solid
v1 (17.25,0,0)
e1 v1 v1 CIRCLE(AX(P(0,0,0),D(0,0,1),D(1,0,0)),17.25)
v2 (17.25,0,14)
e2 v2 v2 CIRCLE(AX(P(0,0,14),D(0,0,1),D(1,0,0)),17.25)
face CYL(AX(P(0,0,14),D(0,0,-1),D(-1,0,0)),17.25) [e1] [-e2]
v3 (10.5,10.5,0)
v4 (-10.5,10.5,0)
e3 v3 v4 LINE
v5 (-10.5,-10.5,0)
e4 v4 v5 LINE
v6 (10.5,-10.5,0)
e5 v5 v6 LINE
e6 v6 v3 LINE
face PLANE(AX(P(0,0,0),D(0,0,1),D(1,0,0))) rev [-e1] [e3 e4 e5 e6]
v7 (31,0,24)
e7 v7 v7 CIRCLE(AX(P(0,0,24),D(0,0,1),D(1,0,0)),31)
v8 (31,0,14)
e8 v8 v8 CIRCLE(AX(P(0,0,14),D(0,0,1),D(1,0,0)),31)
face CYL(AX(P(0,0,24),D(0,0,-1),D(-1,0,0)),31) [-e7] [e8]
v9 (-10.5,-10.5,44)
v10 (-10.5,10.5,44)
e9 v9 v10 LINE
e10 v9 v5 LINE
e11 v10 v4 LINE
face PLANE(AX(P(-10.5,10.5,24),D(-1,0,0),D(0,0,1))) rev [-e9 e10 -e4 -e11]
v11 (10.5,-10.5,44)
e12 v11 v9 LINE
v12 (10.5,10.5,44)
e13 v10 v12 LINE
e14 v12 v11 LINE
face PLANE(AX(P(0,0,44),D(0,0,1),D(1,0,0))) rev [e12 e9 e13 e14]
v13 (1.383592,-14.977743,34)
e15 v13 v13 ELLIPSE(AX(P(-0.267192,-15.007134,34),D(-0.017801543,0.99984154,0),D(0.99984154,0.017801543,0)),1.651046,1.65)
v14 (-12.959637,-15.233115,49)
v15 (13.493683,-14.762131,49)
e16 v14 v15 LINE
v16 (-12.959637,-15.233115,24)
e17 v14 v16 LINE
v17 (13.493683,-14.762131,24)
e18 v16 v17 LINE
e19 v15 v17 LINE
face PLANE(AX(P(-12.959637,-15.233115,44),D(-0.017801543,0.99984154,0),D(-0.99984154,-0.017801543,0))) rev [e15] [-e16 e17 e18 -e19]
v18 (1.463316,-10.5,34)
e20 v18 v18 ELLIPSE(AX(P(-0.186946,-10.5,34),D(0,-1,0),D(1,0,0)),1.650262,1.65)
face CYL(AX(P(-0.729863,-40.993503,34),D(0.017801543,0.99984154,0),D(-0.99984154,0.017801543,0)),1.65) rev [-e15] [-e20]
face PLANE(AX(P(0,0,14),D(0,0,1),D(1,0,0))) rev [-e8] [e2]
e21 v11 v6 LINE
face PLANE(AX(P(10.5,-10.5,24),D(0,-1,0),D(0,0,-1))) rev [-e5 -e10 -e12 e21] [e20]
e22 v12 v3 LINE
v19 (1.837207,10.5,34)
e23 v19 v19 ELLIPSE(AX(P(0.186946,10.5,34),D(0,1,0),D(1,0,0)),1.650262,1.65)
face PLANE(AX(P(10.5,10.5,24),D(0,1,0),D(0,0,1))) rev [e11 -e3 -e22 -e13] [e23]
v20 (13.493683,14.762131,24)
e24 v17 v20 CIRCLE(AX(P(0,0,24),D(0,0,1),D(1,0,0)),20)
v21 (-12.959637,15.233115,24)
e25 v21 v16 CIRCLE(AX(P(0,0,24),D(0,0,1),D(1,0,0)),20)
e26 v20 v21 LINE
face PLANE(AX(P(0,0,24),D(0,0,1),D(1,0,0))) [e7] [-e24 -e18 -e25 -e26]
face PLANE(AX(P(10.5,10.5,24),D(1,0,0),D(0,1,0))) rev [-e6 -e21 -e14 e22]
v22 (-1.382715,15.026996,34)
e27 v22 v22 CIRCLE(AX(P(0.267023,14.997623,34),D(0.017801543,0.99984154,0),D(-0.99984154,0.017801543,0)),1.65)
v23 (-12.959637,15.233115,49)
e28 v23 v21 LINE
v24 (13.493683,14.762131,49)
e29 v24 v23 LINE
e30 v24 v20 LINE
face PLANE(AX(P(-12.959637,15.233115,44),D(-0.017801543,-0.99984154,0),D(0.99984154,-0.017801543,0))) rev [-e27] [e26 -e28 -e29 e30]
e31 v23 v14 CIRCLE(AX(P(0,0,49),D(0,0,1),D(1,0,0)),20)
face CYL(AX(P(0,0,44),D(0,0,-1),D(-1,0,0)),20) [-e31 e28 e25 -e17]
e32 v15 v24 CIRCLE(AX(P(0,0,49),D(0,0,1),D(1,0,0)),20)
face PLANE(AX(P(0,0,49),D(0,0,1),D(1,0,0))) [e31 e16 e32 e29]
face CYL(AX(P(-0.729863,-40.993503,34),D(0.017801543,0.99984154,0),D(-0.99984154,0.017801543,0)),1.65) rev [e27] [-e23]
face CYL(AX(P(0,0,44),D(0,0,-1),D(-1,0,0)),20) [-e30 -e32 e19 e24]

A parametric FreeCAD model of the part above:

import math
import FreeCAD as App
import Part
import Sketcher

V = App.Vector
Q = App.Units.Quantity

doc = App.newDocument("Part")
body = doc.addObject("PartDesign::Body", "Body")

# Sketch on XY plane
sketch1 = body.newObject("Sketcher::SketchObject", "Sketch")
sketch1.AttachmentSupport = (doc.getObject("XY_Plane"), [""])
sketch1.MapMode = "FlatFace"
sketch1.addGeometry(Part.Circle(V(0, 0, 0), V(0, 0, 1), 17), False)
sketch1.addConstraint([
    Sketcher.Constraint("Coincident", 0, 3, -1, 1),
    Sketcher.Constraint("Diameter", 0, Q("34.5 mm")),
])
pad1 = body.newObject("PartDesign::Pad", "Pad")
pad1.Profile = sketch1
pad1.Length = 14

# Sketch on XY plane
sketch2 = body.newObject("Sketcher::SketchObject", "Sketch001")
sketch2.AttachmentSupport = (doc.getObject("XY_Plane"), [""])
sketch2.MapMode = "FlatFace"
sketch2.AttachmentOffset = App.Placement(V(0, 0, 14), App.Rotation())
sketch2.addGeometry(Part.Circle(V(0, 0, 0), V(0, 0, 1), 31), False)
sketch2.addConstraint([
    Sketcher.Constraint("Coincident", 0, 3, -1, 1),
    Sketcher.Constraint("Diameter", 0, Q("62 mm")),
])
pad2 = body.newObject("PartDesign::Pad", "Pad001")
pad2.Profile = sketch2
pad2.Length = 10

# Sketch on XY plane
sketch3 = body.newObject("Sketcher::SketchObject", "Sketch002")
sketch3.AttachmentSupport = (doc.getObject("XY_Plane"), [""])
sketch3.MapMode = "FlatFace"
sketch3.addGeometry([
    Part.LineSegment(V(10, 10, 0), V(10, -10, 0)),
    Part.LineSegment(V(10, -10, 0), V(-10, -10, 0)),
    Part.LineSegment(V(-10, -10, 0), V(-10, 10, 0)),
    Part.LineSegment(V(-10, 10, 0), V(10, 10, 0)),
], False)
sketch3.addConstraint([
    Sketcher.Constraint("Coincident", 0, 2, 1, 1),
    Sketcher.Constraint("Coincident", 1, 2, 2, 1),
    Sketcher.Constraint("Coincident", 2, 2, 3, 1),
    Sketcher.Constraint("Coincident", 3, 2, 0, 1),
    Sketcher.Constraint("Vertical", 0),
    Sketcher.Constraint("Horizontal", 1),
    Sketcher.Constraint("Vertical", 2),
    Sketcher.Constraint("Horizontal", 3),
    Sketcher.Constraint("Symmetric", 0, 2, 2, 2, -1, 1),
    Sketcher.Constraint("Equal", 3, 0),
    Sketcher.Constraint("DistanceX", 1, 2, 1, 1, Q("21 mm")),
])
pocket1 = body.newObject("PartDesign::Pocket", "Pocket")
pocket1.Profile = sketch3
pocket1.Type = "ThroughAll"
pocket1.Midplane = True

# Sketch on XY plane
sketch4 = body.newObject("Sketcher::SketchObject", "Sketch003")
sketch4.AttachmentSupport = (doc.getObject("XY_Plane"), [""])
sketch4.MapMode = "FlatFace"
sketch4.AttachmentOffset = App.Placement(V(0, 0, 24), App.Rotation())
sketch4.addGeometry([
    Part.LineSegment(V(13, 15, 0), V(-13, 15, 0)),
    Part.ArcOfCircle(Part.Circle(V(0, 0, 0), V(0, 0, 1), 20), math.radians(130), math.radians(230)),
    Part.LineSegment(V(-13, -15, 0), V(13, -15, 0)),
    Part.ArcOfCircle(Part.Circle(V(0, 0, 0), V(0, 0, 1), 20), math.radians(-48), math.radians(48)),
], False)
sketch4.addConstraint([
    Sketcher.Constraint("Coincident", 0, 2, 1, 1),
    Sketcher.Constraint("Coincident", 1, 2, 2, 1),
    Sketcher.Constraint("Coincident", 2, 2, 3, 1),
    Sketcher.Constraint("Coincident", 3, 2, 0, 1),
    Sketcher.Constraint("Coincident", 1, 3, -1, 1),
    Sketcher.Constraint("Coincident", 3, 3, -1, 1),
    Sketcher.Constraint("Equal", 1, 3),
    Sketcher.Constraint("Vertical", 0, 2, 1, 2),
    Sketcher.Constraint("Vertical", 2, 2, 3, 2),
    Sketcher.Constraint("Radius", 1, Q("20 mm")),
    Sketcher.Constraint("Angle", 0, Q("178.979993 deg")),
    Sketcher.Constraint("DistanceY", 2, 2, -1, 1, Q("14.762131 mm")),
])
pad3 = body.newObject("PartDesign::Pad", "Pad002")
pad3.Profile = sketch4
pad3.Length = 20

# Sketch on XY plane
sketch5 = body.newObject("Sketcher::SketchObject", "Sketch004")
sketch5.AttachmentSupport = (doc.getObject("XY_Plane"), [""])
sketch5.MapMode = "FlatFace"
sketch5.AttachmentOffset = App.Placement(V(0, 0, 24), App.Rotation())
sketch5.addGeometry([
    Part.LineSegment(V(10, 10, 0), V(10, -10, 0)),
    Part.LineSegment(V(10, -10, 0), V(-10, -10, 0)),
    Part.LineSegment(V(-10, -10, 0), V(-10, 10, 0)),
    Part.LineSegment(V(-10, 10, 0), V(10, 10, 0)),
], False)
sketch5.addConstraint([
    Sketcher.Constraint("Coincident", 0, 2, 1, 1),
    Sketcher.Constraint("Coincident", 1, 2, 2, 1),
    Sketcher.Constraint("Coincident", 2, 2, 3, 1),
    Sketcher.Constraint("Coincident", 3, 2, 0, 1),
    Sketcher.Constraint("Vertical", 0),
    Sketcher.Constraint("Horizontal", 1),
    Sketcher.Constraint("Vertical", 2),
    Sketcher.Constraint("Horizontal", 3),
    Sketcher.Constraint("Symmetric", 0, 2, 2, 2, -1, 1),
    Sketcher.Constraint("Equal", 3, 0),
    Sketcher.Constraint("DistanceX", 1, 2, 1, 1, Q("21 mm")),
])
pocket2 = body.newObject("PartDesign::Pocket", "Pocket001")
pocket2.Profile = sketch5
pocket2.Length = 20
pocket2.Reversed = True

# Sketch on an angled plane
sketch6 = body.newObject("Sketcher::SketchObject", "Sketch005")
sketch6.Placement = App.Placement(V(0.267023, 14.997623, 0), App.Rotation(V(0.99984154, -0.017801543, 0), V(0, 0, -1), V(0.017801543, 0.99984154, 0), "ZXY"))
sketch6.addGeometry(Part.Circle(V(0, -34, 0), V(0, 0, 1), 1.6), False)
sketch6.addConstraint([
    Sketcher.Constraint("PointOnObject", 0, 3, -2),
    Sketcher.Constraint("Diameter", 0, Q("3.3 mm")),
    Sketcher.Constraint("DistanceY", 0, 3, -1, 1, Q("34 mm")),
])
pocket3 = body.newObject("PartDesign::Pocket", "Pocket002")
pocket3.Profile = sketch6
pocket3.Length = 56

# Sketch on XY plane
sketch7 = body.newObject("Sketcher::SketchObject", "Sketch006")
sketch7.AttachmentSupport = (doc.getObject("XY_Plane"), [""])
sketch7.MapMode = "FlatFace"
sketch7.AttachmentOffset = App.Placement(V(0, 0, 44), App.Rotation())
sketch7.addGeometry([
    Part.LineSegment(V(-13, -15, 0), V(13, -15, 0)),
    Part.ArcOfCircle(Part.Circle(V(0, 0, 0), V(0, 0, 1), 20), math.radians(-48), math.radians(48)),
    Part.LineSegment(V(13, 15, 0), V(-13, 15, 0)),
    Part.ArcOfCircle(Part.Circle(V(0, 0, 0), V(0, 0, 1), 20), math.radians(130), math.radians(230)),
], False)
sketch7.addConstraint([
    Sketcher.Constraint("Coincident", 0, 2, 1, 1),
    Sketcher.Constraint("Coincident", 1, 2, 2, 1),
    Sketcher.Constraint("Coincident", 2, 2, 3, 1),
    Sketcher.Constraint("Coincident", 3, 2, 0, 1),
    Sketcher.Constraint("Coincident", 1, 3, -1, 1),
    Sketcher.Constraint("Coincident", 3, 3, -1, 1),
    Sketcher.Constraint("Equal", 1, 3),
    Sketcher.Constraint("Vertical", 0, 2, 1, 2),
    Sketcher.Constraint("Vertical", 2, 2, 3, 2),
    Sketcher.Constraint("Radius", 1, Q("20 mm")),
    Sketcher.Constraint("Angle", 0, Q("1.020007 deg")),
    Sketcher.Constraint("DistanceY", 0, 2, -1, 1, Q("14.762131 mm")),
])
pad4 = body.newObject("PartDesign::Pad", "Pad003")
pad4.Profile = sketch7
pad4.Length = 5

doc.recompute()
